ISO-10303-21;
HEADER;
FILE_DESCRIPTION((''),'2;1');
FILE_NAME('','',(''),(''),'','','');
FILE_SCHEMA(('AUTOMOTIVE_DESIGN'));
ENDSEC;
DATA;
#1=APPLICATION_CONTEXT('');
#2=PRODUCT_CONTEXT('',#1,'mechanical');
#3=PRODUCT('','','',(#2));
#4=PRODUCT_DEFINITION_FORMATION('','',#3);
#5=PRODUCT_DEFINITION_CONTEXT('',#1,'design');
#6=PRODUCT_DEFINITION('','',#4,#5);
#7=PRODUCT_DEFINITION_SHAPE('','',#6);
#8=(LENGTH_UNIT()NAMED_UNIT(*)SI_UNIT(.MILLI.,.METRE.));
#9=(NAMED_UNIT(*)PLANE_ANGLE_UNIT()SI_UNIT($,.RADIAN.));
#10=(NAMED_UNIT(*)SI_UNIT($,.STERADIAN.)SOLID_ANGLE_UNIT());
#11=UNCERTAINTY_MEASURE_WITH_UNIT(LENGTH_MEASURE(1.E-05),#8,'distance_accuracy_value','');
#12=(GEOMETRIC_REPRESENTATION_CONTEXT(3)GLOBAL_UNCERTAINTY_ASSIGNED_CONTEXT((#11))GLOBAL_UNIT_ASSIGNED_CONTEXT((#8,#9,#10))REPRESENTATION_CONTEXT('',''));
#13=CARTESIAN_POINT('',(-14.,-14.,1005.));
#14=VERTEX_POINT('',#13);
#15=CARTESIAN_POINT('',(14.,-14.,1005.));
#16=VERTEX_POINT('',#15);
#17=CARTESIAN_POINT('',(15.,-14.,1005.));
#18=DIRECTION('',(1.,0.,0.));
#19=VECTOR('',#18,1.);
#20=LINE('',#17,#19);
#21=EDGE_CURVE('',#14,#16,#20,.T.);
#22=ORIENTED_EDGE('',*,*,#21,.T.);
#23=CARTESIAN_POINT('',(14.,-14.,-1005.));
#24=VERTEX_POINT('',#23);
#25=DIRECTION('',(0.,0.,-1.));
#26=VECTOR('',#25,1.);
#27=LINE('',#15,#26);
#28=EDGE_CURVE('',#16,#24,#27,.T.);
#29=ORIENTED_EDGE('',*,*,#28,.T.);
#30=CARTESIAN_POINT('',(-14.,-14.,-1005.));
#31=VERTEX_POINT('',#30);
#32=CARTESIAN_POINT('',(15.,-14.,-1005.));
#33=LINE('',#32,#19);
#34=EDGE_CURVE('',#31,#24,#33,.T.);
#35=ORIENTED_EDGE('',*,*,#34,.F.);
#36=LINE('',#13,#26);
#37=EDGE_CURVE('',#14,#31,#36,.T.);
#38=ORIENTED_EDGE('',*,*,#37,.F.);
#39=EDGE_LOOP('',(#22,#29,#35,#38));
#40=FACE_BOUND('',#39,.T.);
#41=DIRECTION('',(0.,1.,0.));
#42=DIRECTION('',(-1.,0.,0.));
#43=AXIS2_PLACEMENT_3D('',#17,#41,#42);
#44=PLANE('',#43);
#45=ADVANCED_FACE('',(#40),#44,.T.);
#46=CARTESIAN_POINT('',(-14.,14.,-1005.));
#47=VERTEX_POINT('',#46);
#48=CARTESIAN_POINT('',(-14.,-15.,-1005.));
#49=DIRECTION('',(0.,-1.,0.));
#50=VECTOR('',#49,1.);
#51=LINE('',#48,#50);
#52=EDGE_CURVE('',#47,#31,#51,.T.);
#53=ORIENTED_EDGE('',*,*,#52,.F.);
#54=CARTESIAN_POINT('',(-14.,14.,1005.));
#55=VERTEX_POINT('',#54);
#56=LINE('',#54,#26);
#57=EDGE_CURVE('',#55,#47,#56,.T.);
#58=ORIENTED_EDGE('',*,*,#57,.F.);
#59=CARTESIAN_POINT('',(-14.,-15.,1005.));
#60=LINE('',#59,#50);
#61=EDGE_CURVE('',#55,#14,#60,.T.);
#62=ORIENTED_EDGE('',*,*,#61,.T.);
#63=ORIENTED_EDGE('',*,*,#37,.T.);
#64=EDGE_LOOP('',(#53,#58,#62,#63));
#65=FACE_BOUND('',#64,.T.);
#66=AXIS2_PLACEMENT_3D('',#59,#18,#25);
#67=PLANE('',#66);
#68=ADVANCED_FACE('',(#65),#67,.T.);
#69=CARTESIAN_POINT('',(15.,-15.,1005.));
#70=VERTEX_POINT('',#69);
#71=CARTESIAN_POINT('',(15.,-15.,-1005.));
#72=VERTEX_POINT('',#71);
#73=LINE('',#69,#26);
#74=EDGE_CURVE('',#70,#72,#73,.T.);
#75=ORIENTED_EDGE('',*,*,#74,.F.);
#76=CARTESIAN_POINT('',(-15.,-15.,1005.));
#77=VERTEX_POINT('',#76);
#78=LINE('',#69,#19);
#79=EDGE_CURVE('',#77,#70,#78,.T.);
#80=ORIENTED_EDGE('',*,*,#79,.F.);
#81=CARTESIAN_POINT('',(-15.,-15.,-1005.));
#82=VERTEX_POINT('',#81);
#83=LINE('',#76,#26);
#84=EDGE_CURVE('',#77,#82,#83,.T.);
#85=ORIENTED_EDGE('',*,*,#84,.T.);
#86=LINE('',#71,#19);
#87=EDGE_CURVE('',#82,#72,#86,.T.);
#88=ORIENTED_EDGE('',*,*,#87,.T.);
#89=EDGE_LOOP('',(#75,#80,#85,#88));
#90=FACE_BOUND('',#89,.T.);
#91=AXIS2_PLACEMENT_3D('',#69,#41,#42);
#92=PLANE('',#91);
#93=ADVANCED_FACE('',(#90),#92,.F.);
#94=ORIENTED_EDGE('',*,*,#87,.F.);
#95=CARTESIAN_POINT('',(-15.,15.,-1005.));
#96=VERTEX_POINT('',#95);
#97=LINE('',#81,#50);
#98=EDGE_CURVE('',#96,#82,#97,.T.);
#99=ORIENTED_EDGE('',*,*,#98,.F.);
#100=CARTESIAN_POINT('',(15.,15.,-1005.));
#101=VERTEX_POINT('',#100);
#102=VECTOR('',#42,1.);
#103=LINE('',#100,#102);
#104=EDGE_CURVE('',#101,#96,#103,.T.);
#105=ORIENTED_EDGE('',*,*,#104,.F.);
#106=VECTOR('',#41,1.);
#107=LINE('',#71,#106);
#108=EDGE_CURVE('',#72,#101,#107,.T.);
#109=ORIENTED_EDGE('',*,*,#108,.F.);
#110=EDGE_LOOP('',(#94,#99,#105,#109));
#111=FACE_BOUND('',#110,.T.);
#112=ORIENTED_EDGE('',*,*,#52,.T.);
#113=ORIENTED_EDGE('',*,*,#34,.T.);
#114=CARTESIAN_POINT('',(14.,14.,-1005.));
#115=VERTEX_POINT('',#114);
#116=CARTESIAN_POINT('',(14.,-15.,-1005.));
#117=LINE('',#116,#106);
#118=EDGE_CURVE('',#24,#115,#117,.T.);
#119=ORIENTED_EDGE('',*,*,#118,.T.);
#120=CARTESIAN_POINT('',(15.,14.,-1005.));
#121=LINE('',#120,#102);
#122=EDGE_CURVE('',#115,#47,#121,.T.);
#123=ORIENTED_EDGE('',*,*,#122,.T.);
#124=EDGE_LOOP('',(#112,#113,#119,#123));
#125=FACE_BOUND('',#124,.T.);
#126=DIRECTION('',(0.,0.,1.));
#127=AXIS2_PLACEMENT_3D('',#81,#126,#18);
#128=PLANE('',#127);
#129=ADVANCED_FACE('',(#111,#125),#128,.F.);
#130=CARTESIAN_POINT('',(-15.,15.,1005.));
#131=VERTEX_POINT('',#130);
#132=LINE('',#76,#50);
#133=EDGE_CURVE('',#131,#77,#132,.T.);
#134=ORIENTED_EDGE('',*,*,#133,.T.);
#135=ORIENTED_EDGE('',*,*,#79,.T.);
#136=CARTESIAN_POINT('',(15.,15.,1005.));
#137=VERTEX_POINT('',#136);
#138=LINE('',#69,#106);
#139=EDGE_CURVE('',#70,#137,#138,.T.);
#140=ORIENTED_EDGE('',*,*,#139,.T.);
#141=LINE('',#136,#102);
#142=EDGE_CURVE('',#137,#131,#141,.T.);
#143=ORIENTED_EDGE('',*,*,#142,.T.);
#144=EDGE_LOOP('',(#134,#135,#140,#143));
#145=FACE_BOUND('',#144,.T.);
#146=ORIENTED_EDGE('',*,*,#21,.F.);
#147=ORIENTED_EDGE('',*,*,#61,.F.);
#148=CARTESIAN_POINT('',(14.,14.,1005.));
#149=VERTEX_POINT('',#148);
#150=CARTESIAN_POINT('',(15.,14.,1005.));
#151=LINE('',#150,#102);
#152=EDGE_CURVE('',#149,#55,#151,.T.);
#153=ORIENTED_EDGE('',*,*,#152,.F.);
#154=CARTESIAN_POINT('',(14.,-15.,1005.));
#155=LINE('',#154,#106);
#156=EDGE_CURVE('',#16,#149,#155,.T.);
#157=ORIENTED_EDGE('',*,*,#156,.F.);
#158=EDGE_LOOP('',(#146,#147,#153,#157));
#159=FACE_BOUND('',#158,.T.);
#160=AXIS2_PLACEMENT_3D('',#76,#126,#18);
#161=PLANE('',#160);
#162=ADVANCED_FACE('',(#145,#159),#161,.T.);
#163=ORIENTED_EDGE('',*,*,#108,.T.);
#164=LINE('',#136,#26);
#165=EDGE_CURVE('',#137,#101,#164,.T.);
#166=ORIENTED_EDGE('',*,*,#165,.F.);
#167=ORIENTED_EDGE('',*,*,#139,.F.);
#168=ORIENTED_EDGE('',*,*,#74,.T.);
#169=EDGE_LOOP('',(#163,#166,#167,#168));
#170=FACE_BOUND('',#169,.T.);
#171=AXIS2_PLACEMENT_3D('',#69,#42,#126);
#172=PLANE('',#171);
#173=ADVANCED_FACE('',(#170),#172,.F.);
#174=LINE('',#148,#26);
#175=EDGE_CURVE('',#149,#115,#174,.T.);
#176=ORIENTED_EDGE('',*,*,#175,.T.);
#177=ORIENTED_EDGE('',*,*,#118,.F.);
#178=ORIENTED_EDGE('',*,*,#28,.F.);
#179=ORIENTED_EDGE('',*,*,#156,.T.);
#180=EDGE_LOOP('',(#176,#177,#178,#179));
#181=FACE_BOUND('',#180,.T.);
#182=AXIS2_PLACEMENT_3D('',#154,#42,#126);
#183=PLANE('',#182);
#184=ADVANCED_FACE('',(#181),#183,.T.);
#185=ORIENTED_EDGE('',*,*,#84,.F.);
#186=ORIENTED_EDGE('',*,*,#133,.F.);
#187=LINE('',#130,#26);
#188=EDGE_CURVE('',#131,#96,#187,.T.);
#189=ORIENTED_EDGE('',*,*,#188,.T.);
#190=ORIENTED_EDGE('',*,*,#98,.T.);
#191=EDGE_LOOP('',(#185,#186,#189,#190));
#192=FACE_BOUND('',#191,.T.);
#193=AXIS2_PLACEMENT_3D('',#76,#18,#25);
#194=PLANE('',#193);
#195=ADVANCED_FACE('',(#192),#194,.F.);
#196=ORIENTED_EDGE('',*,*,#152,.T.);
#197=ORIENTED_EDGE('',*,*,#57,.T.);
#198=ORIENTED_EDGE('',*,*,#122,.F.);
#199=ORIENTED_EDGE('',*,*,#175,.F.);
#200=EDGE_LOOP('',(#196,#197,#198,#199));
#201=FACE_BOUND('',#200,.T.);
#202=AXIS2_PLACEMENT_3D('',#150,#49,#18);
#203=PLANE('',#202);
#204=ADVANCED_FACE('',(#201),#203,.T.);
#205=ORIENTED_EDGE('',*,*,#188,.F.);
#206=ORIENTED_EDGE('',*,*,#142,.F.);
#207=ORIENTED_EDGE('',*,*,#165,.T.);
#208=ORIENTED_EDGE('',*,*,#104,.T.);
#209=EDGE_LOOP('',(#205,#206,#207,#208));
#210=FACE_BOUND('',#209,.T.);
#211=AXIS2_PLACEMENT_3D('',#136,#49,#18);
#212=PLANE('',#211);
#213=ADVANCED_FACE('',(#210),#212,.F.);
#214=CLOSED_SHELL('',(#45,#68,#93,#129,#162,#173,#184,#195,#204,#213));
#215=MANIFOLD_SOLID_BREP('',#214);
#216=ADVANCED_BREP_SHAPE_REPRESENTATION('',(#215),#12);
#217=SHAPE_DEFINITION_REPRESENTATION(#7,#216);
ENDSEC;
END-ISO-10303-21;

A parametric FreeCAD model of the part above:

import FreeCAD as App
import Part
import Sketcher
from FreeCAD import Vector
Q = App.Units.Quantity


def add_polygon(sketch, points):
    """Adds a closed chain of lines whose ends are joined by coincident constraints."""
    first, n = sketch.GeometryCount, len(points)
    for a, b in zip(points, points[1:] + points[:1]):
        sketch.addGeometry(Part.LineSegment(App.Vector(*a, 0), App.Vector(*b, 0)), False)
    for i in range(n):
        sketch.addConstraint(Sketcher.Constraint("Coincident", first + i, 2, first + (i + 1) % n, 1))

doc = App.newDocument("Part")
body = doc.addObject("PartDesign::Body", "Body")

sketch1 = body.newObject("Sketcher::SketchObject", "Sketch")
sketch1.AttachmentSupport = (doc.getObject("XY_Plane"), [""])
sketch1.MapMode = "FlatFace"
add_polygon(sketch1, [(-15, 15), (-15, -15), (15, -15), (15, 15)])
add_polygon(sketch1, [(14, -14), (-14, -14), (-14, 14), (14, 14)])
sketch1.addConstraint([
    Sketcher.Constraint("Vertical", 0),
    Sketcher.Constraint("Horizontal", 1),
    Sketcher.Constraint("Vertical", 2),
    Sketcher.Constraint("Horizontal", 3),
    Sketcher.Constraint("Horizontal", 4),
    Sketcher.Constraint("Vertical", 5),
    Sketcher.Constraint("Horizontal", 6),
    Sketcher.Constraint("Vertical", 7),
    Sketcher.Constraint("Symmetric", 0, 2, 2, 2, -1, 1),
    Sketcher.Constraint("Symmetric", 4, 2, 6, 2, -1, 1),
    Sketcher.Constraint("Equal", 3, 0),
    Sketcher.Constraint("Equal", 6, 5),
    Sketcher.Constraint("DistanceX", 1, 1, 1, 2, Q("30 mm")),
    Sketcher.Constraint("DistanceX", 4, 2, 4, 1, Q("28 mm")),
])
pad1 = body.newObject("PartDesign::Pad", "Pad")
pad1.Profile = sketch1
pad1.Length = 2010
pad1.Midplane = True

doc.recompute()
